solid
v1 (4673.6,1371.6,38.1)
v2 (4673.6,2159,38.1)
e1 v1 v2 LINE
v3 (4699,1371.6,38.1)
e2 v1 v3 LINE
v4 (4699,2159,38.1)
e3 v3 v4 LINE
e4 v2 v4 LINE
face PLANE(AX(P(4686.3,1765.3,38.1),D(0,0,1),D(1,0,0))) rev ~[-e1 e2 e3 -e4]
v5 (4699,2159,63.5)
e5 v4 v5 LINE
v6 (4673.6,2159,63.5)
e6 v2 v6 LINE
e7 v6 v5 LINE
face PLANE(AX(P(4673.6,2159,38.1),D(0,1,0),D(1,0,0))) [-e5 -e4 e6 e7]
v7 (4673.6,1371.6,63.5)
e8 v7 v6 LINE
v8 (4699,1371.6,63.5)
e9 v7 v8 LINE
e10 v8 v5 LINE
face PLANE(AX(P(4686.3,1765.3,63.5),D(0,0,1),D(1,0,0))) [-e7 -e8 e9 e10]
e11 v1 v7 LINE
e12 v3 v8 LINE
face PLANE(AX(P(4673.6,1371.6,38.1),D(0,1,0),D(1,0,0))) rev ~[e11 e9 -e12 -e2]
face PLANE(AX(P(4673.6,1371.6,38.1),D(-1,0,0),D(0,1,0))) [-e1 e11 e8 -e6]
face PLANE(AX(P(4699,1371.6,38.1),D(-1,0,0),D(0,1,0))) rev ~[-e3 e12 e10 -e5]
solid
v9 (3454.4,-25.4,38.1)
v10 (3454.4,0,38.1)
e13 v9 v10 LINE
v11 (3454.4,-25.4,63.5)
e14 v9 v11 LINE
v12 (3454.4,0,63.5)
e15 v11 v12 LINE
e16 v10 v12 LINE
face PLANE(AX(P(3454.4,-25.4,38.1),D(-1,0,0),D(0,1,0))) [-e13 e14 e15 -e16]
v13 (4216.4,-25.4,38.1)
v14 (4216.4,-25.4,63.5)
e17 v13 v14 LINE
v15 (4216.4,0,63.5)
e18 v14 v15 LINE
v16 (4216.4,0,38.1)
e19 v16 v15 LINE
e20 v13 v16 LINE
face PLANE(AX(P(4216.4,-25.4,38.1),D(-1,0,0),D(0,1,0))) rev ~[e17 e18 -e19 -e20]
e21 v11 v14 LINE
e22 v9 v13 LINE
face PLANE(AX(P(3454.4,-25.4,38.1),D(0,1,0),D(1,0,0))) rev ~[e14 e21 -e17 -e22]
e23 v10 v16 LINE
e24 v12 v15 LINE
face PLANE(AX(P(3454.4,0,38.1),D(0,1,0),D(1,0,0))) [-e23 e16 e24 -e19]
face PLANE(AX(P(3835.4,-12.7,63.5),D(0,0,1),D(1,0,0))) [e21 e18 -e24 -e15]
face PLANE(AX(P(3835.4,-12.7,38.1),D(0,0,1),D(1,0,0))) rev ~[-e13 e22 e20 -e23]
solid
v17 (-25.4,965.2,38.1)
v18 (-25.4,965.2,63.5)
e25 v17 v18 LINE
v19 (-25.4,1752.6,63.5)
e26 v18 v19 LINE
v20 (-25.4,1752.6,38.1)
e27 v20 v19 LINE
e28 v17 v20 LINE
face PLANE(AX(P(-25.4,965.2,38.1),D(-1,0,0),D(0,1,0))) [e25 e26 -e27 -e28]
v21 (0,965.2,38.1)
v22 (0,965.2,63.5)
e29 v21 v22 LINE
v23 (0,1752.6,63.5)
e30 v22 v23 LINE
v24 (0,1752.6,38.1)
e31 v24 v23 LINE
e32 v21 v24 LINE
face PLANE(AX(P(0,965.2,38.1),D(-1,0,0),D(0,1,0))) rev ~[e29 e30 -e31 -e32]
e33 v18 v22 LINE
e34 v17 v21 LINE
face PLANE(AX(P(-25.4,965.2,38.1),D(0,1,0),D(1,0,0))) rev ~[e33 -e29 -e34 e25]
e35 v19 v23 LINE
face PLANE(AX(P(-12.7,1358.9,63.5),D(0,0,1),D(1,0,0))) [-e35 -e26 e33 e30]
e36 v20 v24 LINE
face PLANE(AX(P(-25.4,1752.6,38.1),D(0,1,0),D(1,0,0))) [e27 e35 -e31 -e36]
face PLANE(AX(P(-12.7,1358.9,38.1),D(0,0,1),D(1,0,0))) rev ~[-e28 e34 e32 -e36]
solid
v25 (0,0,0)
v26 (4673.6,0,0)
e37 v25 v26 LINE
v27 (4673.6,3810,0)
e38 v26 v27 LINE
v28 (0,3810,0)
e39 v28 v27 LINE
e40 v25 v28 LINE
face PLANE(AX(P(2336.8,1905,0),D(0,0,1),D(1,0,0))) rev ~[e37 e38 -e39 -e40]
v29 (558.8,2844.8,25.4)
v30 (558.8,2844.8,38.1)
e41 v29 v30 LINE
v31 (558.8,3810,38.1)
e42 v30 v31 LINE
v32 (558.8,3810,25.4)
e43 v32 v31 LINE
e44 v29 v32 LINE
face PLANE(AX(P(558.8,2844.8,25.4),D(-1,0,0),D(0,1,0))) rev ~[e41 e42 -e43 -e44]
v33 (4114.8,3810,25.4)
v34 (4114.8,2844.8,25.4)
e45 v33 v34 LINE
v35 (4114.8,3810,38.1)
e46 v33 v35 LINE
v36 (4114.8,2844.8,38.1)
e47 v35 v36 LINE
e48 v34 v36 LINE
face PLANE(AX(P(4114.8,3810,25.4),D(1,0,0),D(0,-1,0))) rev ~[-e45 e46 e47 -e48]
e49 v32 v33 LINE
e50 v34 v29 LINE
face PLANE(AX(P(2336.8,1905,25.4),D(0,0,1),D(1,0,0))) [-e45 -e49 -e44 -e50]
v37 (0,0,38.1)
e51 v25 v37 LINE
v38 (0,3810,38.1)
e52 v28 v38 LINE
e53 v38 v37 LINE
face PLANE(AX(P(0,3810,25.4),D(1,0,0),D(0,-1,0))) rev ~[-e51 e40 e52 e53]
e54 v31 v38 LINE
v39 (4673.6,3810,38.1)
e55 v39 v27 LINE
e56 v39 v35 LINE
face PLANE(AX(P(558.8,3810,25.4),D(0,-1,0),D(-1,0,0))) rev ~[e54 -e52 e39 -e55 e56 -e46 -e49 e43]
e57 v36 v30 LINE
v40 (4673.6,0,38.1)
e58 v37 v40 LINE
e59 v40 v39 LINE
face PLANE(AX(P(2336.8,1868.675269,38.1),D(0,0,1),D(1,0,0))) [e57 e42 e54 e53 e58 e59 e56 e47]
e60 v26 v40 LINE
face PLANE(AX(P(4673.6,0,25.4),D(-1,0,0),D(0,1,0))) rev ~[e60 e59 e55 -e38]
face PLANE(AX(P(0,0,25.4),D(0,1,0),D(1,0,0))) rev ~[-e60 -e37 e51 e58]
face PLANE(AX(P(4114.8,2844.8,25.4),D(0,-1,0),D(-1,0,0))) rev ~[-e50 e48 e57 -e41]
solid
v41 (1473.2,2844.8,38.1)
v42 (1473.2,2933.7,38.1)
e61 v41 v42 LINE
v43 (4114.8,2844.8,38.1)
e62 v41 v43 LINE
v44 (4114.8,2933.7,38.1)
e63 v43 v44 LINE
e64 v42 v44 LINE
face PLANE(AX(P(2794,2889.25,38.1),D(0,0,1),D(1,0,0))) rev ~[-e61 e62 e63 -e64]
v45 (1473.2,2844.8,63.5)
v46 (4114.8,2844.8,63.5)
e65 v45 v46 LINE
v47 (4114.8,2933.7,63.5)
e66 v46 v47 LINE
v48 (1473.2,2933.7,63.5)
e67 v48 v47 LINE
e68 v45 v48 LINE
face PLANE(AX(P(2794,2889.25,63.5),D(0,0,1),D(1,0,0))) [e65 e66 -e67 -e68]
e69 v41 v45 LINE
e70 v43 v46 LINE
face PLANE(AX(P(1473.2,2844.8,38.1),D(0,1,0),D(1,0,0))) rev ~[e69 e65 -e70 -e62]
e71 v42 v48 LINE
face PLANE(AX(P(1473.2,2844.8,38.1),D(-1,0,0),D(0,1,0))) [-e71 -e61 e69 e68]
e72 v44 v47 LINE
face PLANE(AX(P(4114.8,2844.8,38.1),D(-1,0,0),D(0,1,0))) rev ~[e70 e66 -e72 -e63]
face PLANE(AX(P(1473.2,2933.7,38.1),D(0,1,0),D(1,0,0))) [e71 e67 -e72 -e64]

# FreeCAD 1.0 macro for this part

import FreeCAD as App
import Part
import Sketcher

V = App.Vector
Q = App.Units.Quantity

doc = App.newDocument("Part")
body = doc.addObject("PartDesign::Body", "Body")

# Sketch on XY plane
sketch1 = doc.addObject("Sketcher::SketchObject", "Sketch")
body.addObject(sketch1)
sketch1.AttachmentSupport = (doc.XY_Plane, [""])
sketch1.MapMode = "FlatFace"
sketch1.addGeometry(Part.LineSegment(V(0, 3810, 0), V(0, 0, 0)), False)
sketch1.addGeometry(Part.LineSegment(V(0, 0, 0), V(4673.6, 0, 0)), False)
sketch1.addGeometry(Part.LineSegment(V(4673.6, 0, 0), V(4673.6, 3810, 0)), False)
sketch1.addGeometry(Part.LineSegment(V(4673.6, 3810, 0), V(0, 3810, 0)), False)
sketch1.addConstraint(Sketcher.Constraint("Coincident", 0, 2, 1, 1))
sketch1.addConstraint(Sketcher.Constraint("Coincident", 1, 2, 2, 1))
sketch1.addConstraint(Sketcher.Constraint("Coincident", 2, 2, 3, 1))
sketch1.addConstraint(Sketcher.Constraint("Coincident", 3, 2, 0, 1))
sketch1.addConstraint(Sketcher.Constraint("Vertical", 0))
sketch1.addConstraint(Sketcher.Constraint("Horizontal", 1))
sketch1.addConstraint(Sketcher.Constraint("Vertical", 2))
sketch1.addConstraint(Sketcher.Constraint("Horizontal", 3))
sketch1.addConstraint(Sketcher.Constraint("Coincident", 0, 2, -1, 1))
sketch1.addConstraint(Sketcher.Constraint("DistanceX", 1, 1, 1, 2, Q("184 in")))
sketch1.addConstraint(Sketcher.Constraint("DistanceY", 0, 2, 0, 1, Q("150 in")))
pad1 = doc.addObject("PartDesign::Pad", "Pad")
body.addObject(pad1)
pad1.Profile = sketch1
pad1.Length = Q("1 in")

# Sketch on XY plane
sketch2 = doc.addObject("Sketcher::SketchObject", "Sketch001")
body.addObject(sketch2)
sketch2.AttachmentSupport = (doc.XY_Plane, [""])
sketch2.MapMode = "FlatFace"
sketch2.AttachmentOffset = App.Placement(V(0, 0, 1 * 25.4), App.Rotation())
sketch2.addGeometry(Part.LineSegment(V(558.8, 2844.8, 0), V(558.8, 3810, 0)), False)
sketch2.addGeometry(Part.LineSegment(V(558.8, 3810, 0), V(0, 3810, 0)), False)
sketch2.addGeometry(Part.LineSegment(V(0, 3810, 0), V(0, 0, 0)), False)
sketch2.addGeometry(Part.LineSegment(V(0, 0, 0), V(4673.6, 0, 0)), False)
sketch2.addGeometry(Part.LineSegment(V(4673.6, 0, 0), V(4673.6, 3810, 0)), False)
sketch2.addGeometry(Part.LineSegment(V(4673.6, 3810, 0), V(4114.8, 3810, 0)), False)
sketch2.addGeometry(Part.LineSegment(V(4114.8, 3810, 0), V(4114.8, 2844.8, 0)), False)
sketch2.addGeometry(Part.LineSegment(V(4114.8, 2844.8, 0), V(558.8, 2844.8, 0)), False)
sketch2.addConstraint(Sketcher.Constraint("Coincident", 0, 2, 1, 1))
sketch2.addConstraint(Sketcher.Constraint("Coincident", 1, 2, 2, 1))
sketch2.addConstraint(Sketcher.Constraint("Coincident", 2, 2, 3, 1))
sketch2.addConstraint(Sketcher.Constraint("Coincident", 3, 2, 4, 1))
sketch2.addConstraint(Sketcher.Constraint("Coincident", 4, 2, 5, 1))
sketch2.addConstraint(Sketcher.Constraint("Coincident", 5, 2, 6, 1))
sketch2.addConstraint(Sketcher.Constraint("Coincident", 6, 2, 7, 1))
sketch2.addConstraint(Sketcher.Constraint("Coincident", 7, 2, 0, 1))
sketch2.addConstraint(Sketcher.Constraint("Vertical", 0))
sketch2.addConstraint(Sketcher.Constraint("Horizontal", 1))
sketch2.addConstraint(Sketcher.Constraint("Vertical", 2))
sketch2.addConstraint(Sketcher.Constraint("Horizontal", 3))
sketch2.addConstraint(Sketcher.Constraint("Vertical", 4))
sketch2.addConstraint(Sketcher.Constraint("Horizontal", 5))
sketch2.addConstraint(Sketcher.Constraint("Vertical", 6))
sketch2.addConstraint(Sketcher.Constraint("Horizontal", 7))
sketch2.addConstraint(Sketcher.Constraint("Coincident", 2, 2, -1, 1))
sketch2.addConstraint(Sketcher.Constraint("Horizontal", 1, 2, 4, 2))
sketch2.addConstraint(Sketcher.Constraint("Equal", 1, 5))
sketch2.addConstraint(Sketcher.Constraint("DistanceX", 1, 2, 1, 1, Q("22 in")))
sketch2.addConstraint(Sketcher.Constraint("DistanceX", 3, 1, 3, 2, Q("184 in")))
sketch2.addConstraint(Sketcher.Constraint("DistanceY", 0, 1, 0, 2, Q("38 in")))
sketch2.addConstraint(Sketcher.Constraint("DistanceY", 2, 2, 2, 1, Q("150 in")))
pad2 = doc.addObject("PartDesign::Pad", "Pad001")
body.addObject(pad2)
pad2.Profile = sketch2
pad2.Length = Q("0.5 in")
body2 = doc.addObject("PartDesign::Body", "Body001")

# Sketch on XY plane
sketch3 = doc.addObject("Sketcher::SketchObject", "Sketch002")
body2.addObject(sketch3)
sketch3.AttachmentSupport = (doc.getObject("XY_Plane001"), [""])
sketch3.MapMode = "FlatFace"
sketch3.AttachmentOffset = App.Placement(V(0, 0, 1.5 * 25.4), App.Rotation())
sketch3.addGeometry(Part.LineSegment(V(1473.2, 2933.7, 0), V(1473.2, 2844.8, 0)), False)
sketch3.addGeometry(Part.LineSegment(V(1473.2, 2844.8, 0), V(4114.8, 2844.8, 0)), False)
sketch3.addGeometry(Part.LineSegment(V(4114.8, 2844.8, 0), V(4114.8, 2933.7, 0)), False)
sketch3.addGeometry(Part.LineSegment(V(4114.8, 2933.7, 0), V(1473.2, 2933.7, 0)), False)
sketch3.addConstraint(Sketcher.Constraint("Coincident", 0, 2, 1, 1))
sketch3.addConstraint(Sketcher.Constraint("Coincident", 1, 2, 2, 1))
sketch3.addConstraint(Sketcher.Constraint("Coincident", 2, 2, 3, 1))
sketch3.addConstraint(Sketcher.Constraint("Coincident", 3, 2, 0, 1))
sketch3.addConstraint(Sketcher.Constraint("Vertical", 0))
sketch3.addConstraint(Sketcher.Constraint("Horizontal", 1))
sketch3.addConstraint(Sketcher.Constraint("Vertical", 2))
sketch3.addConstraint(Sketcher.Constraint("Horizontal", 3))
sketch3.addConstraint(Sketcher.Constraint("DistanceX", 1, 1, 1, 2, Q("104 in")))
sketch3.addConstraint(Sketcher.Constraint("DistanceY", 0, 2, 0, 1, Q("3.5 in")))
sketch3.addConstraint(Sketcher.Constraint("DistanceX", -1, 1, 0, 2, Q("58 in")))
sketch3.addConstraint(Sketcher.Constraint("DistanceY", -1, 1, 0, 2, Q("112 in")))
pad3 = doc.addObject("PartDesign::Pad", "Pad002")
body2.addObject(pad3)
pad3.Profile = sketch3
pad3.Length = Q("1 in")
body3 = doc.addObject("PartDesign::Body", "Body002")

# Sketch on XY plane
sketch4 = doc.addObject("Sketcher::SketchObject", "Sketch003")
body3.addObject(sketch4)
sketch4.AttachmentSupport = (doc.getObject("XY_Plane002"), [""])
sketch4.MapMode = "FlatFace"
sketch4.AttachmentOffset = App.Placement(V(0, 0, 1.5 * 25.4), App.Rotation())
sketch4.addGeometry(Part.LineSegment(V(-25.4, 1752.6, 0), V(-25.4, 965.2, 0)), False)
sketch4.addGeometry(Part.LineSegment(V(-25.4, 965.2, 0), V(0, 965.2, 0)), False)
sketch4.addGeometry(Part.LineSegment(V(0, 965.2, 0), V(0, 1752.6, 0)), False)
sketch4.addGeometry(Part.LineSegment(V(0, 1752.6, 0), V(-25.4, 1752.6, 0)), False)
sketch4.addConstraint(Sketcher.Constraint("Coincident", 0, 2, 1, 1))
sketch4.addConstraint(Sketcher.Constraint("Coincident", 1, 2, 2, 1))
sketch4.addConstraint(Sketcher.Constraint("Coincident", 2, 2, 3, 1))
sketch4.addConstraint(Sketcher.Constraint("Coincident", 3, 2, 0, 1))
sketch4.addConstraint(Sketcher.Constraint("Vertical", 0))
sketch4.addConstraint(Sketcher.Constraint("Horizontal", 1))
sketch4.addConstraint(Sketcher.Constraint("Vertical", 2))
sketch4.addConstraint(Sketcher.Constraint("Horizontal", 3))
sketch4.addConstraint(Sketcher.Constraint("PointOnObject", 1, 2, -2))
sketch4.addConstraint(Sketcher.Constraint("DistanceX", 1, 1, 1, 2, Q("1 in")))
sketch4.addConstraint(Sketcher.Constraint("DistanceY", 0, 2, 0, 1, Q("31 in")))
sketch4.addConstraint(Sketcher.Constraint("DistanceY", -1, 1, 0, 2, Q("38 in")))
pad4 = doc.addObject("PartDesign::Pad", "Pad003")
body3.addObject(pad4)
pad4.Profile = sketch4
pad4.Length = Q("1 in")
body4 = doc.addObject("PartDesign::Body", "Body003")
body4.AllowCompound = True

# Sketch on XY plane
sketch5 = doc.addObject("Sketcher::SketchObject", "Sketch004")
body4.addObject(sketch5)
sketch5.AttachmentSupport = (doc.getObject("XY_Plane003"), [""])
sketch5.MapMode = "FlatFace"
sketch5.AttachmentOffset = App.Placement(V(0, 0, 1.5 * 25.4), App.Rotation())
sketch5.addGeometry(Part.LineSegment(V(4673.6, 2159, 0), V(4673.6, 1371.6, 0)), False)
sketch5.addGeometry(Part.LineSegment(V(4673.6, 1371.6, 0), V(4699, 1371.6, 0)), False)
sketch5.addGeometry(Part.LineSegment(V(4699, 1371.6, 0), V(4699, 2159, 0)), False)
sketch5.addGeometry(Part.LineSegment(V(4699, 2159, 0), V(4673.6, 2159, 0)), False)
sketch5.addGeometry(Part.LineSegment(V(3454.4, 0, 0), V(3454.4, -25.4, 0)), False)
sketch5.addGeometry(Part.LineSegment(V(3454.4, -25.4, 0), V(4216.4, -25.4, 0)), False)
sketch5.addGeometry(Part.LineSegment(V(4216.4, -25.4, 0), V(4216.4, 0, 0)), False)
sketch5.addGeometry(Part.LineSegment(V(4216.4, 0, 0), V(3454.4, 0, 0)), False)
sketch5.addConstraint(Sketcher.Constraint("Coincident", 0, 2, 1, 1))
sketch5.addConstraint(Sketcher.Constraint("Coincident", 1, 2, 2, 1))
sketch5.addConstraint(Sketcher.Constraint("Coincident", 2, 2, 3, 1))
sketch5.addConstraint(Sketcher.Constraint("Coincident", 3, 2, 0, 1))
sketch5.addConstraint(Sketcher.Constraint("Coincident", 4, 2, 5, 1))
sketch5.addConstraint(Sketcher.Constraint("Coincident", 5, 2, 6, 1))
sketch5.addConstraint(Sketcher.Constraint("Coincident", 6, 2, 7, 1))
sketch5.addConstraint(Sketcher.Constraint("Coincident", 7, 2, 4, 1))
sketch5.addConstraint(Sketcher.Constraint("Vertical", 0))
sketch5.addConstraint(Sketcher.Constraint("Horizontal", 1))
sketch5.addConstraint(Sketcher.Constraint("Vertical", 2))
sketch5.addConstraint(Sketcher.Constraint("Horizontal", 3))
sketch5.addConstraint(Sketcher.Constraint("Vertical", 4))
sketch5.addConstraint(Sketcher.Constraint("Horizontal", 5))
sketch5.addConstraint(Sketcher.Constraint("Vertical", 6))
sketch5.addConstraint(Sketcher.Constraint("Horizontal", 7))
sketch5.addConstraint(Sketcher.Constraint("PointOnObject", 6, 2, -1))
sketch5.addConstraint(Sketcher.Constraint("Equal", 3, 4))
sketch5.addConstraint(Sketcher.Constraint("DistanceX", 1, 1, 1, 2, Q("1 in")))
sketch5.addConstraint(Sketcher.Constraint("DistanceX", 5, 1, 5, 2, Q("30 in")))
sketch5.addConstraint(Sketcher.Constraint("DistanceY", 0, 2, 0, 1, Q("31 in")))
sketch5.addConstraint(Sketcher.Constraint("DistanceX", -1, 1, 0, 2, Q("184 in")))
sketch5.addConstraint(Sketcher.Constraint("DistanceY", -1, 1, 0, 2, Q("54 in")))
sketch5.addConstraint(Sketcher.Constraint("DistanceX", -1, 1, 4, 2, Q("136 in")))
pad5 = doc.addObject("PartDesign::Pad", "Pad004")
body4.addObject(pad5)
pad5.Profile = sketch5
pad5.Length = Q("1 in")

doc.recompute()
